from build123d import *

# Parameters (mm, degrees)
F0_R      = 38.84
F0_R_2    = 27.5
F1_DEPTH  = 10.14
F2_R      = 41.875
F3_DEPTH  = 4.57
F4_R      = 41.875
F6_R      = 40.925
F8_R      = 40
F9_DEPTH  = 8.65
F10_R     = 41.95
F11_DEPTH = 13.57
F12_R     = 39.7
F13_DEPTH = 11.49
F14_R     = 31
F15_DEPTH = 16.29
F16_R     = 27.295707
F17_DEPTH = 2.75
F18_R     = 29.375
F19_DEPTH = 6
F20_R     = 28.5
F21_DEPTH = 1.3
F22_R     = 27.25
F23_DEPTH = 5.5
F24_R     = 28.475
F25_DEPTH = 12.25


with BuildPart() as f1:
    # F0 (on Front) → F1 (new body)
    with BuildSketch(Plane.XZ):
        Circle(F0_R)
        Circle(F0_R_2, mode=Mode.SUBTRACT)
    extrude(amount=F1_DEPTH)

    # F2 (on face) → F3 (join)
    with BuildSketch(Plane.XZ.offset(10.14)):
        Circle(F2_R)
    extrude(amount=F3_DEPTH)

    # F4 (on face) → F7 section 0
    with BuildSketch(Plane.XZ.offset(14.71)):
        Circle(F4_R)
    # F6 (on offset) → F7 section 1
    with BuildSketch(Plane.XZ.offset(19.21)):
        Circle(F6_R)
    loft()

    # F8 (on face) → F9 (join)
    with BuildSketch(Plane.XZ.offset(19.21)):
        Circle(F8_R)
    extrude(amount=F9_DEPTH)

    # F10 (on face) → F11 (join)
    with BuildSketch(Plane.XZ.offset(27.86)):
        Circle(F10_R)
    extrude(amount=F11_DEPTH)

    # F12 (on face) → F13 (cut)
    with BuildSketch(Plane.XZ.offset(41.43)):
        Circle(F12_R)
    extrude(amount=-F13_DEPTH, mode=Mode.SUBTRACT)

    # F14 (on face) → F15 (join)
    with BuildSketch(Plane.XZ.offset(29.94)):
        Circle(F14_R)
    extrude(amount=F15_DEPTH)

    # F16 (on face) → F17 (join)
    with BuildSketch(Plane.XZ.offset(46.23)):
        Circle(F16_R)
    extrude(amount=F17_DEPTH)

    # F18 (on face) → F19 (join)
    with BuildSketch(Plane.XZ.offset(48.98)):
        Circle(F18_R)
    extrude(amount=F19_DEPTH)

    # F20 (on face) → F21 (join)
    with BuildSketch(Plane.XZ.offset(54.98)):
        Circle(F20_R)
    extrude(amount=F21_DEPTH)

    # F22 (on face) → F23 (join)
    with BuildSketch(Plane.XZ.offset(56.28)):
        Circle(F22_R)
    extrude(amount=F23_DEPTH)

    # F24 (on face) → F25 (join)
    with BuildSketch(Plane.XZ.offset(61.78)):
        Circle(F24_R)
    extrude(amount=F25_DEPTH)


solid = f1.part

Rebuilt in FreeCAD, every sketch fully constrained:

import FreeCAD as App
import Part
import Sketcher

V = App.Vector
Q = App.Units.Quantity

doc = App.newDocument("Part")
body = doc.addObject("PartDesign::Body", "Body")

# Sketch on XZ plane
sketch1 = body.newObject("Sketcher::SketchObject", "Sketch")
sketch1.AttachmentSupport = (doc.getObject("XZ_Plane"), [""])
sketch1.MapMode = "FlatFace"
sketch1.addGeometry([
    Part.Circle(V(0, 0, 0), V(0, 0, 1), 38.84),
    Part.Circle(V(0, 0, 0), V(0, 0, 1), 27.5),
], False)
sketch1.addConstraint([
    Sketcher.Constraint("Coincident", 0, 3, -1, 1),
    Sketcher.Constraint("Coincident", 1, 3, -1, 1),
    Sketcher.Constraint("Diameter", 1, Q("55 mm")),
    Sketcher.Constraint("Diameter", 0, Q("77.68 mm")),
])
pad1 = body.newObject("PartDesign::Pad", "Pad")
pad1.Profile = sketch1
pad1.Length = 10.14

# Sketch on XZ plane
sketch2 = body.newObject("Sketcher::SketchObject", "Sketch001")
sketch2.AttachmentSupport = (doc.getObject("XZ_Plane"), [""])
sketch2.MapMode = "FlatFace"
sketch2.AttachmentOffset = App.Placement(V(0, 0, 10.14), App.Rotation())
sketch2.addGeometry(Part.Circle(V(0, 0, 0), V(0, 0, 1), 41.875), False)
sketch2.addConstraint([
    Sketcher.Constraint("Coincident", 0, 3, -1, 1),
    Sketcher.Constraint("Diameter", 0, Q("83.75 mm")),
])
pad2 = body.newObject("PartDesign::Pad", "Pad001")
pad2.Profile = sketch2
pad2.Length = 4.57

# Sketch on XZ plane
sketch3 = body.newObject("Sketcher::SketchObject", "Sketch002")
sketch3.AttachmentSupport = (doc.getObject("XZ_Plane"), [""])
sketch3.MapMode = "FlatFace"
sketch3.AttachmentOffset = App.Placement(V(0, 0, 14.71), App.Rotation())
sketch3.addGeometry(Part.Circle(V(0, 0, 0), V(0, 0, 1), 41.875), False)
sketch3.addConstraint([
    Sketcher.Constraint("Coincident", 0, 3, -1, 1),
    Sketcher.Constraint("Diameter", 0, Q("83.75 mm")),
])

# Sketch on XZ plane
sketch4 = body.newObject("Sketcher::SketchObject", "Sketch003")
sketch4.AttachmentSupport = (doc.getObject("XZ_Plane"), [""])
sketch4.MapMode = "FlatFace"
sketch4.AttachmentOffset = App.Placement(V(0, 0, 19.21), App.Rotation())
sketch4.addGeometry(Part.Circle(V(0, 0, 0), V(0, 0, 1), 40.925), False)
sketch4.addConstraint([
    Sketcher.Constraint("Coincident", 0, 3, -1, 1),
    Sketcher.Constraint("Diameter", 0, Q("81.85 mm")),
])

additiveloft = body.newObject("PartDesign::AdditiveLoft", "AdditiveLoft")
additiveloft.Profile = sketch3
additiveloft.Sections = [sketch4]

# Sketch on XZ plane
sketch5 = body.newObject("Sketcher::SketchObject", "Sketch004")
sketch5.AttachmentSupport = (doc.getObject("XZ_Plane"), [""])
sketch5.MapMode = "FlatFace"
sketch5.AttachmentOffset = App.Placement(V(0, 0, 19.21), App.Rotation())
sketch5.addGeometry(Part.Circle(V(0, 0, 0), V(0, 0, 1), 40), False)
sketch5.addConstraint([
    Sketcher.Constraint("Coincident", 0, 3, -1, 1),
    Sketcher.Constraint("Diameter", 0, Q("80 mm")),
])
pad3 = body.newObject("PartDesign::Pad", "Pad002")
pad3.Profile = sketch5
pad3.Length = 8.65

# Sketch on XZ plane
sketch6 = body.newObject("Sketcher::SketchObject", "Sketch005")
sketch6.AttachmentSupport = (doc.getObject("XZ_Plane"), [""])
sketch6.MapMode = "FlatFace"
sketch6.AttachmentOffset = App.Placement(V(0, 0, 27.86), App.Rotation())
sketch6.addGeometry(Part.Circle(V(0, 0, 0), V(0, 0, 1), 41.95), False)
sketch6.addConstraint([
    Sketcher.Constraint("Coincident", 0, 3, -1, 1),
    Sketcher.Constraint("Diameter", 0, Q("83.9 mm")),
])
pad4 = body.newObject("PartDesign::Pad", "Pad003")
pad4.Profile = sketch6
pad4.Length = 13.57

# Sketch on XZ plane
sketch7 = body.newObject("Sketcher::SketchObject", "Sketch006")
sketch7.AttachmentSupport = (doc.getObject("XZ_Plane"), [""])
sketch7.MapMode = "FlatFace"
sketch7.AttachmentOffset = App.Placement(V(0, 0, 41.43), App.Rotation())
sketch7.addGeometry(Part.Circle(V(0, 0, 0), V(0, 0, 1), 39.7), False)
sketch7.addConstraint([
    Sketcher.Constraint("Coincident", 0, 3, -1, 1),
    Sketcher.Constraint("Diameter", 0, Q("79.4 mm")),
])
pocket1 = body.newObject("PartDesign::Pocket", "Pocket")
pocket1.Profile = sketch7
pocket1.Length = 11.49

# Sketch on XZ plane
sketch8 = body.newObject("Sketcher::SketchObject", "Sketch007")
sketch8.AttachmentSupport = (doc.getObject("XZ_Plane"), [""])
sketch8.MapMode = "FlatFace"
sketch8.AttachmentOffset = App.Placement(V(0, 0, 29.94), App.Rotation())
sketch8.addGeometry(Part.Circle(V(0, 0, 0), V(0, 0, 1), 31), False)
sketch8.addConstraint([
    Sketcher.Constraint("Coincident", 0, 3, -1, 1),
    Sketcher.Constraint("Diameter", 0, Q("62 mm")),
])
pad5 = body.newObject("PartDesign::Pad", "Pad004")
pad5.Profile = sketch8
pad5.Length = 16.29

# Sketch on XZ plane
sketch9 = body.newObject("Sketcher::SketchObject", "Sketch008")
sketch9.AttachmentSupport = (doc.getObject("XZ_Plane"), [""])
sketch9.MapMode = "FlatFace"
sketch9.AttachmentOffset = App.Placement(V(0, 0, 46.23), App.Rotation())
sketch9.addGeometry(Part.Circle(V(0, 0, 0), V(0, 0, 1), 27.295707), False)
sketch9.addConstraint([
    Sketcher.Constraint("Coincident", 0, 3, -1, 1),
    Sketcher.Constraint("Diameter", 0, Q("54.591414 mm")),
])
pad6 = body.newObject("PartDesign::Pad", "Pad005")
pad6.Profile = sketch9
pad6.Length = 2.75

# Sketch on XZ plane
sketch10 = body.newObject("Sketcher::SketchObject", "Sketch009")
sketch10.AttachmentSupport = (doc.getObject("XZ_Plane"), [""])
sketch10.MapMode = "FlatFace"
sketch10.AttachmentOffset = App.Placement(V(0, 0, 48.98), App.Rotation())
sketch10.addGeometry(Part.Circle(V(0, 0, 0), V(0, 0, 1), 29.375), False)
sketch10.addConstraint([
    Sketcher.Constraint("Coincident", 0, 3, -1, 1),
    Sketcher.Constraint("Diameter", 0, Q("58.75 mm")),
])
pad7 = body.newObject("PartDesign::Pad", "Pad006")
pad7.Profile = sketch10
pad7.Length = 6

# Sketch on XZ plane
sketch11 = body.newObject("Sketcher::SketchObject", "Sketch010")
sketch11.AttachmentSupport = (doc.getObject("XZ_Plane"), [""])
sketch11.MapMode = "FlatFace"
sketch11.AttachmentOffset = App.Placement(V(0, 0, 54.98), App.Rotation())
sketch11.addGeometry(Part.Circle(V(0, 0, 0), V(0, 0, 1), 28.5), False)
sketch11.addConstraint([
    Sketcher.Constraint("Coincident", 0, 3, -1, 1),
    Sketcher.Constraint("Diameter", 0, Q("57 mm")),
])
pad8 = body.newObject("PartDesign::Pad", "Pad007")
pad8.Profile = sketch11
pad8.Length = 1.3

# Sketch on XZ plane
sketch12 = body.newObject("Sketcher::SketchObject", "Sketch011")
sketch12.AttachmentSupport = (doc.getObject("XZ_Plane"), [""])
sketch12.MapMode = "FlatFace"
sketch12.AttachmentOffset = App.Placement(V(0, 0, 56.28), App.Rotation())
sketch12.addGeometry(Part.Circle(V(0, 0, 0), V(0, 0, 1), 27.25), False)
sketch12.addConstraint([
    Sketcher.Constraint("Coincident", 0, 3, -1, 1),
    Sketcher.Constraint("Diameter", 0, Q("54.5 mm")),
])
pad9 = body.newObject("PartDesign::Pad", "Pad008")
pad9.Profile = sketch12
pad9.Length = 5.5

# Sketch on XZ plane
sketch13 = body.newObject("Sketcher::SketchObject", "Sketch012")
sketch13.AttachmentSupport = (doc.getObject("XZ_Plane"), [""])
sketch13.MapMode = "FlatFace"
sketch13.AttachmentOffset = App.Placement(V(0, 0, 61.78), App.Rotation())
sketch13.addGeometry(Part.Circle(V(0, 0, 0), V(0, 0, 1), 28.475), False)
sketch13.addConstraint([
    Sketcher.Constraint("Coincident", 0, 3, -1, 1),
    Sketcher.Constraint("Diameter", 0, Q("56.95 mm")),
])
pad10 = body.newObject("PartDesign::Pad", "Pad009")
pad10.Profile = sketch13
pad10.Length = 12.25

doc.recompute()
